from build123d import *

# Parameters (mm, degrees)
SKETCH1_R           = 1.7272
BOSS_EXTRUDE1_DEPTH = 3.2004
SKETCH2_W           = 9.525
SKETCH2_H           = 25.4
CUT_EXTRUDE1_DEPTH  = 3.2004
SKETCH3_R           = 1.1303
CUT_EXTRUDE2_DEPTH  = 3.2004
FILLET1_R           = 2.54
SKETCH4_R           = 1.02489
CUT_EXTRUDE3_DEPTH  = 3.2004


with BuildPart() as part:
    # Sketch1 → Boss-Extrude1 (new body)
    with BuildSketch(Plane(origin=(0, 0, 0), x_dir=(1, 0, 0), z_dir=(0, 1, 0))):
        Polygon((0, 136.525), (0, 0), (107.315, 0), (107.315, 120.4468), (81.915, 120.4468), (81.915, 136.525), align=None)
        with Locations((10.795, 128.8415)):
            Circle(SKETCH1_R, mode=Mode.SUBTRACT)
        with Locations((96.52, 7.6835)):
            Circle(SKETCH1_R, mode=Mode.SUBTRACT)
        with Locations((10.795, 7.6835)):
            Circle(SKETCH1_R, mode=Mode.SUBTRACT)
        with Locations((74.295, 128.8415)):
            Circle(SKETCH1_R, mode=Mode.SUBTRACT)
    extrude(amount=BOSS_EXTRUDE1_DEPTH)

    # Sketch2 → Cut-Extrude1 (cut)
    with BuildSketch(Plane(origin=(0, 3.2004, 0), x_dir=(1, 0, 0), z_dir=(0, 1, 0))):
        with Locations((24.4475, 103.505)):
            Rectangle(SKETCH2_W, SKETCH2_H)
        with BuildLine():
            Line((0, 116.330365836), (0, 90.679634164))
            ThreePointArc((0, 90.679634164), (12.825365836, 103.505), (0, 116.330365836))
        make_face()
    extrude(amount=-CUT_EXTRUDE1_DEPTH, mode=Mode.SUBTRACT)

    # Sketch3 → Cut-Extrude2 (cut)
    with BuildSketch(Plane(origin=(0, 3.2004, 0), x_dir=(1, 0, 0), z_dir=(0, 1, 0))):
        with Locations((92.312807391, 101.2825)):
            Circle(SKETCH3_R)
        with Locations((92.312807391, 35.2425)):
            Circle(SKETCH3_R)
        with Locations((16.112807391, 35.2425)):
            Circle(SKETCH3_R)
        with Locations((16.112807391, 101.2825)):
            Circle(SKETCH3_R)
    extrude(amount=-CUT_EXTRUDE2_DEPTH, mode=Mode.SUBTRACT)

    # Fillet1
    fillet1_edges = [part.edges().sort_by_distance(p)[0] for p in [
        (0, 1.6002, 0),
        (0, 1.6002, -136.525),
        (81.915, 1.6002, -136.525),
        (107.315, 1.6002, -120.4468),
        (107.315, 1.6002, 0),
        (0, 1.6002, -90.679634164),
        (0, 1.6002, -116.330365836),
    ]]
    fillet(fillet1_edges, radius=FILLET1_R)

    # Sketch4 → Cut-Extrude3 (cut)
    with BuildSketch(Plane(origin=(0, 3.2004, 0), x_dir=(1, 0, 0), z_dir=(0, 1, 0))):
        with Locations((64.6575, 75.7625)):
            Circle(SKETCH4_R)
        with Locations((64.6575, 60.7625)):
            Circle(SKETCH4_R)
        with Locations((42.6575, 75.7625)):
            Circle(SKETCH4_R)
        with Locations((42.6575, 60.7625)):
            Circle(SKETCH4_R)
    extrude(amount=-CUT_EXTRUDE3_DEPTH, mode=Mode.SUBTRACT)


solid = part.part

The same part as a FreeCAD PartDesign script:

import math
import FreeCAD as App
import Part
import Sketcher
from FreeCAD import Vector
Q = App.Units.Quantity


def edges_at(feature, points):
    """Names of the edges that pass closest to the given points."""
    edges = feature.Shape.Edges
    near = lambda p: min(range(len(edges)), key=lambda i: edges[i].distToShape(Part.Vertex(*p))[0])
    return sorted({f"Edge{near(p) + 1}" for p in points})

doc = App.newDocument("Part")
body = doc.addObject("PartDesign::Body", "Body")

sketch1 = body.newObject("Sketcher::SketchObject", "Sketch")
sketch1.AttachmentSupport = (doc.getObject("XZ_Plane"), [""])
sketch1.MapMode = "FlatFace"
sketch1.addGeometry(Part.LineSegment(Vector(0, -136.5, 0), Vector(0, 0, 0)), False)
sketch1.addGeometry(Part.LineSegment(Vector(0, 0, 0), Vector(107.3, 0, 0)), False)
sketch1.addGeometry(Part.LineSegment(Vector(107.3, 0, 0), Vector(107.3, -120.4, 0)), False)
sketch1.addGeometry(Part.LineSegment(Vector(107.3, -120.4, 0), Vector(81.9, -120.4, 0)), False)
sketch1.addGeometry(Part.LineSegment(Vector(81.9, -120.4, 0), Vector(81.9, -136.5, 0)), False)
sketch1.addGeometry(Part.LineSegment(Vector(81.9, -136.5, 0), Vector(0, -136.5, 0)), False)
sketch1.addGeometry(Part.Circle(Vector(10.8, -7.7, 0), Vector(0, 0, 1), 1.7), False)
sketch1.addGeometry(Part.Circle(Vector(96.5, -7.7, 0), Vector(0, 0, 1), 1.7), False)
sketch1.addGeometry(Part.Circle(Vector(10.8, -128.8, 0), Vector(0, 0, 1), 1.7), False)
sketch1.addGeometry(Part.Circle(Vector(74.3, -128.8, 0), Vector(0, 0, 1), 1.7), False)
sketch1.addConstraint(Sketcher.Constraint("Coincident", 0, 2, 1, 1))
sketch1.addConstraint(Sketcher.Constraint("Coincident", 1, 2, 2, 1))
sketch1.addConstraint(Sketcher.Constraint("Coincident", 2, 2, 3, 1))
sketch1.addConstraint(Sketcher.Constraint("Coincident", 3, 2, 4, 1))
sketch1.addConstraint(Sketcher.Constraint("Coincident", 4, 2, 5, 1))
sketch1.addConstraint(Sketcher.Constraint("Coincident", 5, 2, 0, 1))
sketch1.addConstraint(Sketcher.Constraint("Vertical", 0))
sketch1.addConstraint(Sketcher.Constraint("Horizontal", 1))
sketch1.addConstraint(Sketcher.Constraint("Vertical", 2))
sketch1.addConstraint(Sketcher.Constraint("Horizontal", 3))
sketch1.addConstraint(Sketcher.Constraint("Vertical", 4))
sketch1.addConstraint(Sketcher.Constraint("Horizontal", 5))
sketch1.addConstraint(Sketcher.Constraint("Coincident", 0, 2, -1, 1))
sketch1.addConstraint(Sketcher.Constraint("Equal", 6, 7))
sketch1.addConstraint(Sketcher.Constraint("Equal", 7, 8))
sketch1.addConstraint(Sketcher.Constraint("Equal", 8, 9))
sketch1.addConstraint(Sketcher.Constraint("Horizontal", 6, 3, 7, 3))
sketch1.addConstraint(Sketcher.Constraint("Horizontal", 8, 3, 9, 3))
sketch1.addConstraint(Sketcher.Constraint("Vertical", 6, 3, 8, 3))
sketch1.addConstraint(Sketcher.Constraint("DistanceX", 3, 2, 3, 1, Q("1 in")))
sketch1.addConstraint(Sketcher.Constraint("Diameter", 6, Q("0.136 in")))
sketch1.addConstraint(Sketcher.Constraint("DistanceX", -1, 1, 7, 3, Q("3.8 in")))
sketch1.addConstraint(Sketcher.Constraint("DistanceX", 8, 3, 9, 3, Q("2.5 in")))
sketch1.addConstraint(Sketcher.Constraint("DistanceX", 6, 3, 1, 2, Q("3.8 in")))
sketch1.addConstraint(Sketcher.Constraint("DistanceX", 1, 1, 1, 2, Q("4.225 in")))
sketch1.addConstraint(Sketcher.Constraint("DistanceY", 0, 1, 0, 2, Q("5.375 in")))
sketch1.addConstraint(Sketcher.Constraint("DistanceY", 2, 2, 2, 1, Q("4.742 in")))
sketch1.addConstraint(Sketcher.Constraint("DistanceY", 8, 3, 6, 3, Q("4.77 in")))
sketch1.addConstraint(Sketcher.Constraint("DistanceY", 6, 3, -1, 1, Q("0.3025 in")))
pad1 = body.newObject("PartDesign::Pad", "Pad")
pad1.Profile = sketch1
pad1.Length = Q("0.126 in")
pad1.Reversed = True

sketch2 = body.newObject("Sketcher::SketchObject", "Sketch001")
sketch2.AttachmentSupport = (doc.getObject("XZ_Plane"), [""])
sketch2.MapMode = "FlatFace"
sketch2.AttachmentOffset = App.Placement(Vector(0, 0, -0.126 * 25.4), App.Rotation())
sketch2.addGeometry(Part.LineSegment(Vector(20, -116, 0), Vector(20, -91, 0)), False)
sketch2.addGeometry(Part.LineSegment(Vector(20, -91, 0), Vector(29, -91, 0)), False)
sketch2.addGeometry(Part.LineSegment(Vector(29, -91, 0), Vector(29, -116, 0)), False)
sketch2.addGeometry(Part.LineSegment(Vector(29, -116, 0), Vector(20, -116, 0)), False)
sketch2.addGeometry(Part.LineSegment(Vector(0, -116, 0), Vector(0, -91, 0)), False)
sketch2.addGeometry(Part.ArcOfCircle(Part.Circle(Vector(0, -104, 0), Vector(0, 0, 1), 13), math.radians(-90), math.radians(90)), False)
sketch2.addConstraint(Sketcher.Constraint("Coincident", 0, 2, 1, 1))
sketch2.addConstraint(Sketcher.Constraint("Coincident", 1, 2, 2, 1))
sketch2.addConstraint(Sketcher.Constraint("Coincident", 2, 2, 3, 1))
sketch2.addConstraint(Sketcher.Constraint("Coincident", 3, 2, 0, 1))
sketch2.addConstraint(Sketcher.Constraint("Coincident", 4, 1, 5, 1))
sketch2.addConstraint(Sketcher.Constraint("Coincident", 5, 2, 4, 2))
sketch2.addConstraint(Sketcher.Constraint("Vertical", 0))
sketch2.addConstraint(Sketcher.Constraint("Horizontal", 1))
sketch2.addConstraint(Sketcher.Constraint("Vertical", 2))
sketch2.addConstraint(Sketcher.Constraint("Horizontal", 3))
sketch2.addConstraint(Sketcher.Constraint("Vertical", 4))
sketch2.addConstraint(Sketcher.Constraint("PointOnObject", 5, 3, -2))
sketch2.addConstraint(Sketcher.Constraint("PointOnObject", 4, 1, -2))
sketch2.addConstraint(Sketcher.Constraint("DistanceY", 0, 1, 0, 2, Q("1 in")))
sketch2.addConstraint(Sketcher.Constraint("DistanceY", 5, 3, 0, 2, Q("0.5 in")))
sketch2.addConstraint(Sketcher.Constraint("DistanceX", 1, 1, 1, 2, Q("0.375 in")))
sketch2.addConstraint(Sketcher.Constraint("DistanceX", -1, 1, 1, 2, Q("1.15 in")))
sketch2.addConstraint(Sketcher.Constraint("DistanceY", 5, 3, -1, 1, Q("4.075 in")))
sketch2.addConstraint(Sketcher.Constraint("Radius", 5, Q("12.825366 mm")))
pocket1 = body.newObject("PartDesign::Pocket", "Pocket")
pocket1.Profile = sketch2
pocket1.Length = Q("0.126 in")
pocket1.Reversed = True

sketch3 = body.newObject("Sketcher::SketchObject", "Sketch002")
sketch3.AttachmentSupport = (doc.getObject("XZ_Plane"), [""])
sketch3.MapMode = "FlatFace"
sketch3.AttachmentOffset = App.Placement(Vector(0, 0, -0.126 * 25.4), App.Rotation())
sketch3.addGeometry(Part.Circle(Vector(92.3, -101.3, 0), Vector(0, 0, 1), 1.1), False)
sketch3.addGeometry(Part.Circle(Vector(92.3, -35.2, 0), Vector(0, 0, 1), 1.1), False)
sketch3.addGeometry(Part.Circle(Vector(16.1, -35.2, 0), Vector(0, 0, 1), 1.1), False)
sketch3.addGeometry(Part.Circle(Vector(16.1, -101.3, 0), Vector(0, 0, 1), 1.1), False)
sketch3.addConstraint(Sketcher.Constraint("Equal", 0, 1))
sketch3.addConstraint(Sketcher.Constraint("Equal", 1, 2))
sketch3.addConstraint(Sketcher.Constraint("Equal", 2, 3))
sketch3.addConstraint(Sketcher.Constraint("Horizontal", 1, 3, 2, 3))
sketch3.addConstraint(Sketcher.Constraint("Horizontal", 0, 3, 3, 3))
sketch3.addConstraint(Sketcher.Constraint("Vertical", 0, 3, 1, 3))
sketch3.addConstraint(Sketcher.Constraint("Vertical", 2, 3, 3, 3))
sketch3.addConstraint(Sketcher.Constraint("Diameter", 0, Q("0.089 in")))
sketch3.addConstraint(Sketcher.Constraint("DistanceX", 2, 3, 1, 3, Q("3 in")))
sketch3.addConstraint(Sketcher.Constraint("DistanceY", 0, 3, 1, 3, Q("2.6 in")))
sketch3.addConstraint(Sketcher.Constraint("DistanceY", 0, 3, -1, 1, Q("3.9875 in")))
sketch3.addConstraint(Sketcher.Constraint("DistanceX", -1, 1, 0, 3, Q("92.312807 mm")))
pocket2 = body.newObject("PartDesign::Pocket", "Pocket001")
pocket2.Profile = sketch3
pocket2.Length = Q("0.126 in")
pocket2.Reversed = True
doc.recompute()

fillet = body.newObject("PartDesign::Fillet", "Fillet")
fillet.Base = (pocket2, edges_at(pocket2, [
    (0, 1.6, 0),
    (0, 1.6, -136.525),
    (81.915, 1.6, -136.525),
    (107.315, 1.6, -120.447),
    (107.315, 1.6, 0),
    (0, 1.6, -90.68),
    (0, 1.6, -116.33),
]))
fillet.Radius = Q("0.1 in")

sketch4 = body.newObject("Sketcher::SketchObject", "Sketch003")
sketch4.AttachmentSupport = (doc.getObject("XZ_Plane"), [""])
sketch4.MapMode = "FlatFace"
sketch4.AttachmentOffset = App.Placement(Vector(0, 0, -0.126 * 25.4), App.Rotation())
sketch4.addGeometry(Part.Circle(Vector(64.7, -75.8, 0), Vector(0, 0, 1), 1), False)
sketch4.addGeometry(Part.Circle(Vector(64.7, -60.8, 0), Vector(0, 0, 1), 1), False)
sketch4.addGeometry(Part.Circle(Vector(42.7, -75.8, 0), Vector(0, 0, 1), 1), False)
sketch4.addGeometry(Part.Circle(Vector(42.7, -60.8, 0), Vector(0, 0, 1), 1), False)
sketch4.addConstraint(Sketcher.Constraint("Equal", 0, 1))
sketch4.addConstraint(Sketcher.Constraint("Equal", 1, 2))
sketch4.addConstraint(Sketcher.Constraint("Equal", 2, 3))
sketch4.addConstraint(Sketcher.Constraint("Horizontal", 0, 3, 2, 3))
sketch4.addConstraint(Sketcher.Constraint("Horizontal", 1, 3, 3, 3))
sketch4.addConstraint(Sketcher.Constraint("Vertical", 0, 3, 1, 3))
sketch4.addConstraint(Sketcher.Constraint("Vertical", 2, 3, 3, 3))
sketch4.addConstraint(Sketcher.Constraint("Diameter", 0, Q("0.0807 in")))
sketch4.addConstraint(Sketcher.Constraint("DistanceX", -1, 1, 0, 3, Q("64.6575 mm")))
sketch4.addConstraint(Sketcher.Constraint("DistanceY", 0, 3, -1, 1, Q("75.7625 mm")))
sketch4.addConstraint(Sketcher.Constraint("DistanceY", 1, 3, -1, 1, Q("60.7625 mm")))
sketch4.addConstraint(Sketcher.Constraint("DistanceX", -1, 1, 2, 3, Q("42.6575 mm")))
pocket3 = body.newObject("PartDesign::Pocket", "Pocket002")
pocket3.Profile = sketch4
pocket3.Length = Q("0.126 in")
pocket3.Reversed = True

doc.recompute()
